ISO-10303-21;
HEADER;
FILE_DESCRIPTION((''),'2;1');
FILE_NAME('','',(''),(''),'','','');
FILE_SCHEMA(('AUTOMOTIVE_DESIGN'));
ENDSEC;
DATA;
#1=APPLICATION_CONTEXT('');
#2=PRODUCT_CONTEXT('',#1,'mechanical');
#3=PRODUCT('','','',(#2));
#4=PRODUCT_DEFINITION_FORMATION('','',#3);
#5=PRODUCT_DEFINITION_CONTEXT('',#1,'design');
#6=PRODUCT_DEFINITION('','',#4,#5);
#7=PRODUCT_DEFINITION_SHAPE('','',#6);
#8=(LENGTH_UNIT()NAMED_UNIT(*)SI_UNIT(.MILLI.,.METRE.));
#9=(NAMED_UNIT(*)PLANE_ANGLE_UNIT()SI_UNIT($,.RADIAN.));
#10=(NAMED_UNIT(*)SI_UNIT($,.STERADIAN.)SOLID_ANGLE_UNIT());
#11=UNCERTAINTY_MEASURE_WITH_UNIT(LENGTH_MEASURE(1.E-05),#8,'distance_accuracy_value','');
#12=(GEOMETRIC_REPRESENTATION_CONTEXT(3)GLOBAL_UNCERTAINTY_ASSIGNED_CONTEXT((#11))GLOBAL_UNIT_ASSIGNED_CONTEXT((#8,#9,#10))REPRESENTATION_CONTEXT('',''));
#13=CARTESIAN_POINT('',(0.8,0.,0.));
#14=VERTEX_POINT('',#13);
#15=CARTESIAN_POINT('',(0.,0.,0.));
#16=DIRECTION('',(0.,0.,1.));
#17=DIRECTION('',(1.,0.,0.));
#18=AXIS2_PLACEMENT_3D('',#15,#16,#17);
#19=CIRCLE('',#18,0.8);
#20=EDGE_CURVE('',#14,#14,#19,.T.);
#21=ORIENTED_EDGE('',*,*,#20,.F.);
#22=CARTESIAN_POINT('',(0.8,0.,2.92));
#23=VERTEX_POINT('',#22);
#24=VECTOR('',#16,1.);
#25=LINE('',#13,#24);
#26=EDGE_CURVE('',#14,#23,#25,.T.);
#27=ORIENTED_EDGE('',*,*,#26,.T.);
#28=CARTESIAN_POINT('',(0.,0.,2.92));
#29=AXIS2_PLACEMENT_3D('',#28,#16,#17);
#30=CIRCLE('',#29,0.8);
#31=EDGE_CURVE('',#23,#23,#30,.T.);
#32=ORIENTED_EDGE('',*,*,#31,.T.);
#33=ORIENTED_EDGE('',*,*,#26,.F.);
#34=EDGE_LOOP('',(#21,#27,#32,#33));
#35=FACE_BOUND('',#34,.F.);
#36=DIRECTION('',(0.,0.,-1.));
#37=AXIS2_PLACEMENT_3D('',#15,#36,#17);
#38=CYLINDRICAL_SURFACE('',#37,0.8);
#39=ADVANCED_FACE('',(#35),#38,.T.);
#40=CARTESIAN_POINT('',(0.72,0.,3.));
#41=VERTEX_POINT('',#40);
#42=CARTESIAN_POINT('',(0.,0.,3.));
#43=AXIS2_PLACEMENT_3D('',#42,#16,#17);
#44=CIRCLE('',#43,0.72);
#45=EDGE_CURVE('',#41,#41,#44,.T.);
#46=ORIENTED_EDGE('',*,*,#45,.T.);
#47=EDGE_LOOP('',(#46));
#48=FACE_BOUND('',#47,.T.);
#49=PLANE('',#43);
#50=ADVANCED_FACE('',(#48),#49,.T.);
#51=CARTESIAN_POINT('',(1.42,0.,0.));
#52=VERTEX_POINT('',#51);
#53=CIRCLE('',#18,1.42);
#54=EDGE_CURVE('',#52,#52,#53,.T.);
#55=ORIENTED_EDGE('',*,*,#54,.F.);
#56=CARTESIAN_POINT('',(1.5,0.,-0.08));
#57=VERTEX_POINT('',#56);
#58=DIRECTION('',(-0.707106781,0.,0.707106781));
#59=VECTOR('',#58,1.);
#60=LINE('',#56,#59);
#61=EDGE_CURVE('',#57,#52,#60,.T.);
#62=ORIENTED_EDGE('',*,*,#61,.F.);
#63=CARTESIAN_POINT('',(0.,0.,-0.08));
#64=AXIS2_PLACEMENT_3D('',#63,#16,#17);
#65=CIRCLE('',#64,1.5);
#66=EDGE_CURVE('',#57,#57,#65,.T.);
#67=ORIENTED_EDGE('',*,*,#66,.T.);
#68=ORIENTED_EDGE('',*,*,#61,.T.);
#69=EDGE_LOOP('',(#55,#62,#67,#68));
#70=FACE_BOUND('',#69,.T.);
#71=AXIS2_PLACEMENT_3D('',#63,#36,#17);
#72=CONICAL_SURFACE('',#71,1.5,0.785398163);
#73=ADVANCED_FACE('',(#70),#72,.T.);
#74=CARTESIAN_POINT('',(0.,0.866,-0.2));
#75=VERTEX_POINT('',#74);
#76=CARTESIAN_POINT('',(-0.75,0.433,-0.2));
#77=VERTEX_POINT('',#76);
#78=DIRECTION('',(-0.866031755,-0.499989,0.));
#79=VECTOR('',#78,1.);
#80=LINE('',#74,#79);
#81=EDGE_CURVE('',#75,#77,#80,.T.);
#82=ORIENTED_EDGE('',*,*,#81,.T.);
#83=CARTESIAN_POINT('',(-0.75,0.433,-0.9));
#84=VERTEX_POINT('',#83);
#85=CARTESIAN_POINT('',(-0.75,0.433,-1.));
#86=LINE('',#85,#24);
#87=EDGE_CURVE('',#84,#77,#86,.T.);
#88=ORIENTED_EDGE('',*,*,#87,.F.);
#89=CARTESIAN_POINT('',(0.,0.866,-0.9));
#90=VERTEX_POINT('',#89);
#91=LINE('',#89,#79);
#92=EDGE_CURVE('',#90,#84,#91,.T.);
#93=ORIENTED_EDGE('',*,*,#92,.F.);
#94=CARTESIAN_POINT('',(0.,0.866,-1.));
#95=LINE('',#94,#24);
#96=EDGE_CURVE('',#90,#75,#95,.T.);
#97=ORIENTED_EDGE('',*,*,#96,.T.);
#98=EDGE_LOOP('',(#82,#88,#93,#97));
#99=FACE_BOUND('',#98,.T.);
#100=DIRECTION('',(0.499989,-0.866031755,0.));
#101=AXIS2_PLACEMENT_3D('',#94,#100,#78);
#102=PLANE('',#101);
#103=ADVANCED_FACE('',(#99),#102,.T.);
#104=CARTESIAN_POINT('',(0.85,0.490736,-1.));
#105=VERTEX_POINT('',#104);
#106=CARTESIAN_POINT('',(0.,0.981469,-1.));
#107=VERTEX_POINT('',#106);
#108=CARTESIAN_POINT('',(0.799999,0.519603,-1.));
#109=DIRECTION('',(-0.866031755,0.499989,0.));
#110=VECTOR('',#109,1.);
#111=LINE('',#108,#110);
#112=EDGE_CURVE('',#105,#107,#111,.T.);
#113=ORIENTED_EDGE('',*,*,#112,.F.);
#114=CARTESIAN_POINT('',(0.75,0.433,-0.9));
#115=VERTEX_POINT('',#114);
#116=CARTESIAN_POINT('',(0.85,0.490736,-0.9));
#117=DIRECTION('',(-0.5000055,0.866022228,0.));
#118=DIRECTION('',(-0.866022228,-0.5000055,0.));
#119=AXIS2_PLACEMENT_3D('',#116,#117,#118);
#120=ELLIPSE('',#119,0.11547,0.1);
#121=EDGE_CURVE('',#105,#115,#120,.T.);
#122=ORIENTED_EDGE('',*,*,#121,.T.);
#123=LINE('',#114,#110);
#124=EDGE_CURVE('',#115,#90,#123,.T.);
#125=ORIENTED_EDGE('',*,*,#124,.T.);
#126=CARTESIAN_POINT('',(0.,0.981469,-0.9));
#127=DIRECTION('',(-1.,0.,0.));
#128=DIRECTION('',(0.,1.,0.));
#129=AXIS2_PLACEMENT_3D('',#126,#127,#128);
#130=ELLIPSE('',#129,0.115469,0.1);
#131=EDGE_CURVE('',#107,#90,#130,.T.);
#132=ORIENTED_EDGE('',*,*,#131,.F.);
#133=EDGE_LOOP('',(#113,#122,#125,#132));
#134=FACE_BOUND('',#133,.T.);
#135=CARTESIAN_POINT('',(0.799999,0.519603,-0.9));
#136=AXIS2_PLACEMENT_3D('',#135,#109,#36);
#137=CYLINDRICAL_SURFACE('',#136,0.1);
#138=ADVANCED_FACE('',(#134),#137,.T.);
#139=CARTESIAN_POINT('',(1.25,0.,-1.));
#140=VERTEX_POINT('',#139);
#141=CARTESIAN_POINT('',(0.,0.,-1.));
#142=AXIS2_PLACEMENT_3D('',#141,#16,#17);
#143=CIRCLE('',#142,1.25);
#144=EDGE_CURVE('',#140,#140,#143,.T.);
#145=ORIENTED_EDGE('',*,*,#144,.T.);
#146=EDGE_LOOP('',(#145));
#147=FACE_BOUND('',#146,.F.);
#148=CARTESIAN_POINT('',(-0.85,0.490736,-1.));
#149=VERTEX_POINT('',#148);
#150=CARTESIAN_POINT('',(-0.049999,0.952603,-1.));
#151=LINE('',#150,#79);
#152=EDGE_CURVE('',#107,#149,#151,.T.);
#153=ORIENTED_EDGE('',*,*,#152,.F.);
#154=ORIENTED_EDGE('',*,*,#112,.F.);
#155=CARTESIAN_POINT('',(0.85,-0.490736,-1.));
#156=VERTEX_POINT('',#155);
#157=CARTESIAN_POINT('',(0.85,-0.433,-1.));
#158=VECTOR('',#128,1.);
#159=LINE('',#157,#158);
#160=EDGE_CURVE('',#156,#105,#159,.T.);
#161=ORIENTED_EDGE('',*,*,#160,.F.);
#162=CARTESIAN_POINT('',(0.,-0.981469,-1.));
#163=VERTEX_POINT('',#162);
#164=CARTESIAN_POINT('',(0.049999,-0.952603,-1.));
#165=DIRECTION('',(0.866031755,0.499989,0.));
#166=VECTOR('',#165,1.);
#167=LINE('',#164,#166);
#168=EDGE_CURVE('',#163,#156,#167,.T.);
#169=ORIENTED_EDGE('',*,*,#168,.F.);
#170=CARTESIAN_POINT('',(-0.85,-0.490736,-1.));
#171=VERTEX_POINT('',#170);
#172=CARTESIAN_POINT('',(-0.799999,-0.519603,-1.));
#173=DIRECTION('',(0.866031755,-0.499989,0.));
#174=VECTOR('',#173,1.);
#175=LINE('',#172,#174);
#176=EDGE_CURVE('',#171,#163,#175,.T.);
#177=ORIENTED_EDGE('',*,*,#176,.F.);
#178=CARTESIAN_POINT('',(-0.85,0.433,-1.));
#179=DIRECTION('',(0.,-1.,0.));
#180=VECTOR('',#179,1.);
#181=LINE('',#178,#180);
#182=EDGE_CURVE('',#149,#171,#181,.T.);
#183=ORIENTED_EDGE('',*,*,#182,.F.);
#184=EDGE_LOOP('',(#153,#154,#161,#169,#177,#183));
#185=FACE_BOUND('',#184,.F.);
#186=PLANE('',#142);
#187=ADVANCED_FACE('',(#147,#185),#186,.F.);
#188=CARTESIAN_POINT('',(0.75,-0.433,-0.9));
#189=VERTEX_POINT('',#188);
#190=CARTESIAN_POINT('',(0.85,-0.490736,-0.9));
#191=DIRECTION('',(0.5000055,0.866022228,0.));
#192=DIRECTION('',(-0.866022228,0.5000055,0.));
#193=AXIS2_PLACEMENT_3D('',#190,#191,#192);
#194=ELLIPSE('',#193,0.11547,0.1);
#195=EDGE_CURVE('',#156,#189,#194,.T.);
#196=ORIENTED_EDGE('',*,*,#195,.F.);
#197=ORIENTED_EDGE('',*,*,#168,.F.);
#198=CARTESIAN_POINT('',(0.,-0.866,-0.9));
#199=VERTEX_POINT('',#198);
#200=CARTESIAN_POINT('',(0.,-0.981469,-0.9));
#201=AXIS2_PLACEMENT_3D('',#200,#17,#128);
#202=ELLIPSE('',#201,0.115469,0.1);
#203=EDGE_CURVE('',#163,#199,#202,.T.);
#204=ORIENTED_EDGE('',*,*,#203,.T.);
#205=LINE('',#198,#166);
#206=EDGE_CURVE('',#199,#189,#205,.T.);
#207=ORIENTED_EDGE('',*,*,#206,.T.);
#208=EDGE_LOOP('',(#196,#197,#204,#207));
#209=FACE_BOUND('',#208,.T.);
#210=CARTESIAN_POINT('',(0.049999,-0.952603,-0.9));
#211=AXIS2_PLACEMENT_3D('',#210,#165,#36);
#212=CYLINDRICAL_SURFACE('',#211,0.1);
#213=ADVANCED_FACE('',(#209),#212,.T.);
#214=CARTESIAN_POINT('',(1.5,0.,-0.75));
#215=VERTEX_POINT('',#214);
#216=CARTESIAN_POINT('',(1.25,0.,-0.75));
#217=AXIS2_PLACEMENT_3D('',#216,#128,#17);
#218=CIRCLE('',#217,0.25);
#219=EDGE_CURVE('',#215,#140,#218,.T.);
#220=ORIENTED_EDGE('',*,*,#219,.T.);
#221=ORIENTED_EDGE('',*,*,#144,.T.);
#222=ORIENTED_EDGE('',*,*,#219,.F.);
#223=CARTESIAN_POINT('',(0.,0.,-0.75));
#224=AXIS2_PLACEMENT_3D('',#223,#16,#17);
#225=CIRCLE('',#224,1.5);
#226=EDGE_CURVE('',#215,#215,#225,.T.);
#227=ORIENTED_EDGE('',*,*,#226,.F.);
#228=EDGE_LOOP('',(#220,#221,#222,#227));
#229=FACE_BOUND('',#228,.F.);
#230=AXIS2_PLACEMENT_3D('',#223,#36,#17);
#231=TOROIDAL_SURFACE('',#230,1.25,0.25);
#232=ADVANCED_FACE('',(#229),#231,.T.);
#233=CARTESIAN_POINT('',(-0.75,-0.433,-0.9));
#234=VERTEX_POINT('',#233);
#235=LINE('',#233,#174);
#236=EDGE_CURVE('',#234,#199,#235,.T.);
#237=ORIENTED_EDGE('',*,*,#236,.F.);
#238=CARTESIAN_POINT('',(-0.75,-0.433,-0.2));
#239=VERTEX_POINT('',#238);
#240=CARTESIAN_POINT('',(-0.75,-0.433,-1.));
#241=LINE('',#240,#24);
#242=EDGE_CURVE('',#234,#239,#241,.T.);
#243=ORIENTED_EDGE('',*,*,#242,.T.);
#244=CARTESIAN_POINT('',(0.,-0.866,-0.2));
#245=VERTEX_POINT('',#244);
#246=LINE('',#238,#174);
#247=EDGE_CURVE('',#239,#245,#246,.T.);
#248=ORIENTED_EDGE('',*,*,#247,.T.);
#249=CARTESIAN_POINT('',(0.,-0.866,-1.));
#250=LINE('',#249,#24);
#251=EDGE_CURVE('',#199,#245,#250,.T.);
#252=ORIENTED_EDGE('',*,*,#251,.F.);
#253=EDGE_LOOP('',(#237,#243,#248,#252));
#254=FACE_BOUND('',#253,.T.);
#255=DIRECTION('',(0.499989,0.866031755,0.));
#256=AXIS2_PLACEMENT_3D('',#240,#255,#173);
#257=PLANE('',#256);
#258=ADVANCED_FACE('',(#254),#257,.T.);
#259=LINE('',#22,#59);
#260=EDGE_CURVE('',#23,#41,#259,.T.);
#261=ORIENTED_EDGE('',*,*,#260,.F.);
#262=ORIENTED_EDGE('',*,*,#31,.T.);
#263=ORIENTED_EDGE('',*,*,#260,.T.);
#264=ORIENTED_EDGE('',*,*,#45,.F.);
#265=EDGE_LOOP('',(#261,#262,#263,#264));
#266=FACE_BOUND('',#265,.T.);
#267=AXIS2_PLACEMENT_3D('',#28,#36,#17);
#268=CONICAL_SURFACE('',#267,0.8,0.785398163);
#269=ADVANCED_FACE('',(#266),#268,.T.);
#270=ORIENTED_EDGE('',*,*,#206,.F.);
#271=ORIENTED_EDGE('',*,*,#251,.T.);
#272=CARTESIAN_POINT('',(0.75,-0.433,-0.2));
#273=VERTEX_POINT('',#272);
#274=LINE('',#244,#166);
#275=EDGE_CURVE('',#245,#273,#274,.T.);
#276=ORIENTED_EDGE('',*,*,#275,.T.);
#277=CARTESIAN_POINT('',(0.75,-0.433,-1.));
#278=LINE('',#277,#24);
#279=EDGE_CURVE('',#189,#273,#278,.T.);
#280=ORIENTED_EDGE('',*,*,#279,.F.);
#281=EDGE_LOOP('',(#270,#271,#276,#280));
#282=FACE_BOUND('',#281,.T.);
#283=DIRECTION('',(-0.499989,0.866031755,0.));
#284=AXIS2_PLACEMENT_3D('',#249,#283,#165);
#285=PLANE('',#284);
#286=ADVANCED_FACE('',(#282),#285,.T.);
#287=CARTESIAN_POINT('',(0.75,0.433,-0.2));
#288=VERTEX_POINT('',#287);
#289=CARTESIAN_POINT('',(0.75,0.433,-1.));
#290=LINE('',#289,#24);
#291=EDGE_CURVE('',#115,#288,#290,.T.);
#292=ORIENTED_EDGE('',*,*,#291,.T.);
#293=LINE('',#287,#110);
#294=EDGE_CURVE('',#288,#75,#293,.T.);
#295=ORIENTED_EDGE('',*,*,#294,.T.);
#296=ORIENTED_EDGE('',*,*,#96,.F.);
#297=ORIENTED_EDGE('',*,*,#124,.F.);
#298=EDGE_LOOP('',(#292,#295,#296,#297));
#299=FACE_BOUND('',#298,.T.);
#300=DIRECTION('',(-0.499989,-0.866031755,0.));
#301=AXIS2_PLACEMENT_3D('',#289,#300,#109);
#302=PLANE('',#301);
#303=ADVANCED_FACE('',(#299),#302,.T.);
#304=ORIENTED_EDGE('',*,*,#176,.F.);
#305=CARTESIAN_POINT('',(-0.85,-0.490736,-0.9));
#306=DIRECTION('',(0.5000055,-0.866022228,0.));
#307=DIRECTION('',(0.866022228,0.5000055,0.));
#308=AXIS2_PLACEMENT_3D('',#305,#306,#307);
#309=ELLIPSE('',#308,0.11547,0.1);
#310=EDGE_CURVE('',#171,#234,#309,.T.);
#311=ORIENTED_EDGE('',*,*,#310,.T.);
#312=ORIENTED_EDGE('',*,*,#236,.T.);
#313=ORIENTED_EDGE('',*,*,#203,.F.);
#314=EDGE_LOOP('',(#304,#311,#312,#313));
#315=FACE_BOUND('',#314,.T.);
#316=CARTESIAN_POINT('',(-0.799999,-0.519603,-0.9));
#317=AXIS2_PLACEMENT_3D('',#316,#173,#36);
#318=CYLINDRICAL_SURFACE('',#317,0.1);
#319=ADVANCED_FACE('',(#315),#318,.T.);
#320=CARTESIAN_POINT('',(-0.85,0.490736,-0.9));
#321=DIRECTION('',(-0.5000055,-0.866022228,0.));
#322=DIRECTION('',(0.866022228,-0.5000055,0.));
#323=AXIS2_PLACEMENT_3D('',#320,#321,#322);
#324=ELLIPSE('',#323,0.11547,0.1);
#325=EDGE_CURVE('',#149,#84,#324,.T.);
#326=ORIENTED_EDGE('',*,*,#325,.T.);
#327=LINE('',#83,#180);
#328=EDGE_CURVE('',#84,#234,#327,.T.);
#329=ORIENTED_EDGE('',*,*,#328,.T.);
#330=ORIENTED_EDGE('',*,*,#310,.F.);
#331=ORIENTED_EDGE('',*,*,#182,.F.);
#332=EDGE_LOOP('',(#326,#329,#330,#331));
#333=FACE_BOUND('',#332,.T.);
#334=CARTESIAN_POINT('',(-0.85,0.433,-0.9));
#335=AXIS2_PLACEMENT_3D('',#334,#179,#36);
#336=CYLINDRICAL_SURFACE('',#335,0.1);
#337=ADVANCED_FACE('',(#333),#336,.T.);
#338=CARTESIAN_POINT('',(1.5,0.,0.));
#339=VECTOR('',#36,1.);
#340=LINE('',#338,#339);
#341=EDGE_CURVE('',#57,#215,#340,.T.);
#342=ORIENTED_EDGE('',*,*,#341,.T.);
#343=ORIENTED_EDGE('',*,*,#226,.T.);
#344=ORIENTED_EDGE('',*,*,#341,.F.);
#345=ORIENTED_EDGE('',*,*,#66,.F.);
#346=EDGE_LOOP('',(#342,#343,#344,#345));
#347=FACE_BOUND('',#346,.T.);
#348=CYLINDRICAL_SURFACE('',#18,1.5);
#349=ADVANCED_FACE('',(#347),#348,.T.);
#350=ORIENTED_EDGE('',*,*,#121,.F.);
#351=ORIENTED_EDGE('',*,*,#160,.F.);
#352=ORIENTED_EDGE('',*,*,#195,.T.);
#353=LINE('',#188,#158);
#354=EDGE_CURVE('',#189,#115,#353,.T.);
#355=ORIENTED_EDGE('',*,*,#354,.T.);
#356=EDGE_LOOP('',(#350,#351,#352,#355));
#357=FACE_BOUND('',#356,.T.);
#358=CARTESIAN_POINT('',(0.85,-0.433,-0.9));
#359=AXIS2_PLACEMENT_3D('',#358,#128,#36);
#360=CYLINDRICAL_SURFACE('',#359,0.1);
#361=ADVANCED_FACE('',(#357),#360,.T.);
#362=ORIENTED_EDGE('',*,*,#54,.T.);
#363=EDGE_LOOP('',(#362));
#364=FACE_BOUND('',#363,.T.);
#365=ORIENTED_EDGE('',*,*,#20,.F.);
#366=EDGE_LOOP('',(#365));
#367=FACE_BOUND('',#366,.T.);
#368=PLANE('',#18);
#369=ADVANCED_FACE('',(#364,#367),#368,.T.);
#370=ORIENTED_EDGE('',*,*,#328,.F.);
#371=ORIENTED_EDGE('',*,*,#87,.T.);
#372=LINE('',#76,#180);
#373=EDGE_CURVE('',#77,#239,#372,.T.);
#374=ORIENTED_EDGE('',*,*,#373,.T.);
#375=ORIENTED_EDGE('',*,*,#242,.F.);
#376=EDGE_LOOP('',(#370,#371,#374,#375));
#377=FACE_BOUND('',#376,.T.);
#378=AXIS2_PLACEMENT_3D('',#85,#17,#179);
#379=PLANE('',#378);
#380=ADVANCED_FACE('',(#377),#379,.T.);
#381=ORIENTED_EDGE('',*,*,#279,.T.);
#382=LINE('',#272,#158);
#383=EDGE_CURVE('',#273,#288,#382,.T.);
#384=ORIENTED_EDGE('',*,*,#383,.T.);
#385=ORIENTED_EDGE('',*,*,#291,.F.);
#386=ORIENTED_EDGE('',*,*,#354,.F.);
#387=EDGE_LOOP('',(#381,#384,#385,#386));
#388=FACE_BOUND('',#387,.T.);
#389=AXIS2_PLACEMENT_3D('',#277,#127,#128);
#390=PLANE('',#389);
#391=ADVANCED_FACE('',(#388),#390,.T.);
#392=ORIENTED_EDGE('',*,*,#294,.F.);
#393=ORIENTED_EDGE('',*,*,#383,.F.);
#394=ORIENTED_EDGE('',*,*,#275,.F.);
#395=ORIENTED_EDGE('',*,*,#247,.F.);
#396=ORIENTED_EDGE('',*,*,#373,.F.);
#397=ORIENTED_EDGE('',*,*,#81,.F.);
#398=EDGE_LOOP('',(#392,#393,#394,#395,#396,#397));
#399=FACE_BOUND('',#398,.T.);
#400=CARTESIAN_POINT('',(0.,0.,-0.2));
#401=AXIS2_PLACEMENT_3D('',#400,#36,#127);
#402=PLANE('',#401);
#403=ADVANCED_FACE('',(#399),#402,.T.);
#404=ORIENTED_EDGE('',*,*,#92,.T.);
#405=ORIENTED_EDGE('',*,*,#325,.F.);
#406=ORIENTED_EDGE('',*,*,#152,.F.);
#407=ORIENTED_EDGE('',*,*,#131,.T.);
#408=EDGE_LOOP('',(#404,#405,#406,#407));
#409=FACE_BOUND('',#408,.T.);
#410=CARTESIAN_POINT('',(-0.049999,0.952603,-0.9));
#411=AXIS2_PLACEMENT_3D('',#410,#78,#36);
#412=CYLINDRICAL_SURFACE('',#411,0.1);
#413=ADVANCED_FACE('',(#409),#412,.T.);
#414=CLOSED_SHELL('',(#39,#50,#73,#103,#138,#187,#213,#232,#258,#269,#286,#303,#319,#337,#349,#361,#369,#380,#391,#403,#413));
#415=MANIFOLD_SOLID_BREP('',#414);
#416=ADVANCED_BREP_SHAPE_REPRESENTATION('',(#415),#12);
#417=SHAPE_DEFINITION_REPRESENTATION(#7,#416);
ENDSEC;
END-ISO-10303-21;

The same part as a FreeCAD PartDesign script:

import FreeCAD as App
import Part
import Sketcher

V = App.Vector
Q = App.Units.Quantity


def edges_at(feature, points):
    """Names of the edges that pass closest to the given points."""
    edges = feature.Shape.Edges
    near = lambda p: min(range(len(edges)), key=lambda i: edges[i].distToShape(Part.Vertex(*p))[0])
    return sorted({f"Edge{near(p) + 1}" for p in points})

doc = App.newDocument("Part")
params = doc.addObject("Spreadsheet::Sheet", "Params")
for row, (alias, value) in enumerate([
    ("sketch1_diameter", "1.6 mm"),
    ("pad1_length", "3 mm"),
    ("sketch2_diameter", "3 mm"),
    ("pad2_length", "1 mm"),
    ("pocket1_length", "0.8 mm"),
    ("fillet_radius", "0.25 mm"),
    ("fillet2_radius", "0.1 mm"),
    ("chamfer_size", "0.08 mm"),
], start=1):
    params.set(f"A{row}", alias)
    params.set(f"B{row}", "=" + value)
    params.setAlias(f"B{row}", alias)

body = doc.addObject("PartDesign::Body", "Body")

sketch1 = body.newObject("Sketcher::SketchObject", "Sketch")
sketch1.AttachmentSupport = (doc.getObject("XY_Plane"), [""])
sketch1.MapMode = "FlatFace"
sketch1.addGeometry(Part.Circle(V(0, 0, 0), V(0, 0, 1), 0.8), False)
sketch1.addConstraint(Sketcher.Constraint("Coincident", 0, 3, -1, 1))
sketch1.addConstraint(Sketcher.Constraint("Diameter", 0, Q("1.6 mm")))
sketch1.setExpression("Constraints[1]", "Params.sketch1_diameter")
pad1 = body.newObject("PartDesign::Pad", "Pad")
pad1.Profile = sketch1
pad1.setExpression("Length", "Params.pad1_length")

sketch2 = body.newObject("Sketcher::SketchObject", "Sketch001")
sketch2.AttachmentSupport = (doc.getObject("XY_Plane"), [""])
sketch2.MapMode = "FlatFace"
sketch2.addGeometry(Part.Circle(V(0, 0, 0), V(0, 0, 1), 1.5), False)
sketch2.addConstraint(Sketcher.Constraint("Coincident", 0, 3, -1, 1))
sketch2.addConstraint(Sketcher.Constraint("Diameter", 0, Q("3 mm")))
sketch2.setExpression("Constraints[1]", "Params.sketch2_diameter")
pad2 = body.newObject("PartDesign::Pad", "Pad001")
pad2.Profile = sketch2
pad2.setExpression("Length", "Params.pad2_length")
pad2.Reversed = True

sketch3 = body.newObject("Sketcher::SketchObject", "Sketch002")
sketch3.AttachmentSupport = (doc.getObject("XY_Plane"), [""])
sketch3.MapMode = "FlatFace"
sketch3.AttachmentOffset = App.Placement(V(0, 0, -1), App.Rotation())
sketch3.addGeometry(Part.LineSegment(V(0, 0.9, 0), V(0.8, 0.4, 0)), False)
sketch3.addGeometry(Part.LineSegment(V(0.8, 0.4, 0), V(0.8, -0.4, 0)), False)
sketch3.addGeometry(Part.LineSegment(V(0.8, -0.4, 0), V(0, -0.9, 0)), False)
sketch3.addGeometry(Part.LineSegment(V(0, -0.9, 0), V(-0.8, -0.4, 0)), False)
sketch3.addGeometry(Part.LineSegment(V(-0.8, -0.4, 0), V(-0.8, 0.4, 0)), False)
sketch3.addGeometry(Part.LineSegment(V(-0.8, 0.4, 0), V(0, 0.9, 0)), False)
sketch3.addConstraint(Sketcher.Constraint("Coincident", 0, 2, 1, 1))
sketch3.addConstraint(Sketcher.Constraint("Coincident", 1, 2, 2, 1))
sketch3.addConstraint(Sketcher.Constraint("Coincident", 2, 2, 3, 1))
sketch3.addConstraint(Sketcher.Constraint("Coincident", 3, 2, 4, 1))
sketch3.addConstraint(Sketcher.Constraint("Coincident", 4, 2, 5, 1))
sketch3.addConstraint(Sketcher.Constraint("Coincident", 5, 2, 0, 1))
sketch3.addConstraint(Sketcher.Constraint("Vertical", 1))
sketch3.addConstraint(Sketcher.Constraint("Vertical", 4))
sketch3.addConstraint(Sketcher.Constraint("Symmetric", 0, 2, 3, 2, -1, 1))
sketch3.addConstraint(Sketcher.Constraint("Symmetric", 2, 2, 5, 2, -1, 1))
sketch3.addConstraint(Sketcher.Constraint("PointOnObject", 2, 2, -2))
sketch3.addConstraint(Sketcher.Constraint("Parallel", 2, 5))
sketch3.addConstraint(Sketcher.Constraint("Horizontal", 1, 2, 3, 2))
sketch3.addConstraint(Sketcher.Constraint("DistanceX", 3, 2, 1, 2, Q("1.5 mm")))
sketch3.addConstraint(Sketcher.Constraint("Angle", 0, Q("-29.9993 deg")))
sketch3.addConstraint(Sketcher.Constraint("DistanceY", 1, 2, 1, 1, Q("0.866 mm")))
pocket1 = body.newObject("PartDesign::Pocket", "Pocket")
pocket1.Profile = sketch3
pocket1.setExpression("Length", "Params.pocket1_length")
pocket1.Reversed = True
doc.recompute()

fillet = body.newObject("PartDesign::Fillet", "Fillet")
fillet.Base = (pocket1, edges_at(pocket1, [(-1.5, 0, -1)]))
fillet.setExpression("Radius", "Params.fillet_radius")
doc.recompute()

fillet2 = body.newObject("PartDesign::Fillet", "Fillet001")
fillet2.Base = (fillet, edges_at(fillet, [
    (0.375, 0.649, -1),
    (0.75, 0, -1),
    (0.375, -0.649, -1),
    (-0.375, -0.649, -1),
    (-0.75, 0, -1),
    (-0.375, 0.649, -1),
]))
fillet2.setExpression("Radius", "Params.fillet2_radius")
doc.recompute()

chamfer = body.newObject("PartDesign::Chamfer", "Chamfer")
chamfer.Base = (fillet2, edges_at(fillet2, [(-0.8, 0, 3), (-1.5, 0, 0)]))
chamfer.setExpression("Size", "Params.chamfer_size")

doc.recompute()
